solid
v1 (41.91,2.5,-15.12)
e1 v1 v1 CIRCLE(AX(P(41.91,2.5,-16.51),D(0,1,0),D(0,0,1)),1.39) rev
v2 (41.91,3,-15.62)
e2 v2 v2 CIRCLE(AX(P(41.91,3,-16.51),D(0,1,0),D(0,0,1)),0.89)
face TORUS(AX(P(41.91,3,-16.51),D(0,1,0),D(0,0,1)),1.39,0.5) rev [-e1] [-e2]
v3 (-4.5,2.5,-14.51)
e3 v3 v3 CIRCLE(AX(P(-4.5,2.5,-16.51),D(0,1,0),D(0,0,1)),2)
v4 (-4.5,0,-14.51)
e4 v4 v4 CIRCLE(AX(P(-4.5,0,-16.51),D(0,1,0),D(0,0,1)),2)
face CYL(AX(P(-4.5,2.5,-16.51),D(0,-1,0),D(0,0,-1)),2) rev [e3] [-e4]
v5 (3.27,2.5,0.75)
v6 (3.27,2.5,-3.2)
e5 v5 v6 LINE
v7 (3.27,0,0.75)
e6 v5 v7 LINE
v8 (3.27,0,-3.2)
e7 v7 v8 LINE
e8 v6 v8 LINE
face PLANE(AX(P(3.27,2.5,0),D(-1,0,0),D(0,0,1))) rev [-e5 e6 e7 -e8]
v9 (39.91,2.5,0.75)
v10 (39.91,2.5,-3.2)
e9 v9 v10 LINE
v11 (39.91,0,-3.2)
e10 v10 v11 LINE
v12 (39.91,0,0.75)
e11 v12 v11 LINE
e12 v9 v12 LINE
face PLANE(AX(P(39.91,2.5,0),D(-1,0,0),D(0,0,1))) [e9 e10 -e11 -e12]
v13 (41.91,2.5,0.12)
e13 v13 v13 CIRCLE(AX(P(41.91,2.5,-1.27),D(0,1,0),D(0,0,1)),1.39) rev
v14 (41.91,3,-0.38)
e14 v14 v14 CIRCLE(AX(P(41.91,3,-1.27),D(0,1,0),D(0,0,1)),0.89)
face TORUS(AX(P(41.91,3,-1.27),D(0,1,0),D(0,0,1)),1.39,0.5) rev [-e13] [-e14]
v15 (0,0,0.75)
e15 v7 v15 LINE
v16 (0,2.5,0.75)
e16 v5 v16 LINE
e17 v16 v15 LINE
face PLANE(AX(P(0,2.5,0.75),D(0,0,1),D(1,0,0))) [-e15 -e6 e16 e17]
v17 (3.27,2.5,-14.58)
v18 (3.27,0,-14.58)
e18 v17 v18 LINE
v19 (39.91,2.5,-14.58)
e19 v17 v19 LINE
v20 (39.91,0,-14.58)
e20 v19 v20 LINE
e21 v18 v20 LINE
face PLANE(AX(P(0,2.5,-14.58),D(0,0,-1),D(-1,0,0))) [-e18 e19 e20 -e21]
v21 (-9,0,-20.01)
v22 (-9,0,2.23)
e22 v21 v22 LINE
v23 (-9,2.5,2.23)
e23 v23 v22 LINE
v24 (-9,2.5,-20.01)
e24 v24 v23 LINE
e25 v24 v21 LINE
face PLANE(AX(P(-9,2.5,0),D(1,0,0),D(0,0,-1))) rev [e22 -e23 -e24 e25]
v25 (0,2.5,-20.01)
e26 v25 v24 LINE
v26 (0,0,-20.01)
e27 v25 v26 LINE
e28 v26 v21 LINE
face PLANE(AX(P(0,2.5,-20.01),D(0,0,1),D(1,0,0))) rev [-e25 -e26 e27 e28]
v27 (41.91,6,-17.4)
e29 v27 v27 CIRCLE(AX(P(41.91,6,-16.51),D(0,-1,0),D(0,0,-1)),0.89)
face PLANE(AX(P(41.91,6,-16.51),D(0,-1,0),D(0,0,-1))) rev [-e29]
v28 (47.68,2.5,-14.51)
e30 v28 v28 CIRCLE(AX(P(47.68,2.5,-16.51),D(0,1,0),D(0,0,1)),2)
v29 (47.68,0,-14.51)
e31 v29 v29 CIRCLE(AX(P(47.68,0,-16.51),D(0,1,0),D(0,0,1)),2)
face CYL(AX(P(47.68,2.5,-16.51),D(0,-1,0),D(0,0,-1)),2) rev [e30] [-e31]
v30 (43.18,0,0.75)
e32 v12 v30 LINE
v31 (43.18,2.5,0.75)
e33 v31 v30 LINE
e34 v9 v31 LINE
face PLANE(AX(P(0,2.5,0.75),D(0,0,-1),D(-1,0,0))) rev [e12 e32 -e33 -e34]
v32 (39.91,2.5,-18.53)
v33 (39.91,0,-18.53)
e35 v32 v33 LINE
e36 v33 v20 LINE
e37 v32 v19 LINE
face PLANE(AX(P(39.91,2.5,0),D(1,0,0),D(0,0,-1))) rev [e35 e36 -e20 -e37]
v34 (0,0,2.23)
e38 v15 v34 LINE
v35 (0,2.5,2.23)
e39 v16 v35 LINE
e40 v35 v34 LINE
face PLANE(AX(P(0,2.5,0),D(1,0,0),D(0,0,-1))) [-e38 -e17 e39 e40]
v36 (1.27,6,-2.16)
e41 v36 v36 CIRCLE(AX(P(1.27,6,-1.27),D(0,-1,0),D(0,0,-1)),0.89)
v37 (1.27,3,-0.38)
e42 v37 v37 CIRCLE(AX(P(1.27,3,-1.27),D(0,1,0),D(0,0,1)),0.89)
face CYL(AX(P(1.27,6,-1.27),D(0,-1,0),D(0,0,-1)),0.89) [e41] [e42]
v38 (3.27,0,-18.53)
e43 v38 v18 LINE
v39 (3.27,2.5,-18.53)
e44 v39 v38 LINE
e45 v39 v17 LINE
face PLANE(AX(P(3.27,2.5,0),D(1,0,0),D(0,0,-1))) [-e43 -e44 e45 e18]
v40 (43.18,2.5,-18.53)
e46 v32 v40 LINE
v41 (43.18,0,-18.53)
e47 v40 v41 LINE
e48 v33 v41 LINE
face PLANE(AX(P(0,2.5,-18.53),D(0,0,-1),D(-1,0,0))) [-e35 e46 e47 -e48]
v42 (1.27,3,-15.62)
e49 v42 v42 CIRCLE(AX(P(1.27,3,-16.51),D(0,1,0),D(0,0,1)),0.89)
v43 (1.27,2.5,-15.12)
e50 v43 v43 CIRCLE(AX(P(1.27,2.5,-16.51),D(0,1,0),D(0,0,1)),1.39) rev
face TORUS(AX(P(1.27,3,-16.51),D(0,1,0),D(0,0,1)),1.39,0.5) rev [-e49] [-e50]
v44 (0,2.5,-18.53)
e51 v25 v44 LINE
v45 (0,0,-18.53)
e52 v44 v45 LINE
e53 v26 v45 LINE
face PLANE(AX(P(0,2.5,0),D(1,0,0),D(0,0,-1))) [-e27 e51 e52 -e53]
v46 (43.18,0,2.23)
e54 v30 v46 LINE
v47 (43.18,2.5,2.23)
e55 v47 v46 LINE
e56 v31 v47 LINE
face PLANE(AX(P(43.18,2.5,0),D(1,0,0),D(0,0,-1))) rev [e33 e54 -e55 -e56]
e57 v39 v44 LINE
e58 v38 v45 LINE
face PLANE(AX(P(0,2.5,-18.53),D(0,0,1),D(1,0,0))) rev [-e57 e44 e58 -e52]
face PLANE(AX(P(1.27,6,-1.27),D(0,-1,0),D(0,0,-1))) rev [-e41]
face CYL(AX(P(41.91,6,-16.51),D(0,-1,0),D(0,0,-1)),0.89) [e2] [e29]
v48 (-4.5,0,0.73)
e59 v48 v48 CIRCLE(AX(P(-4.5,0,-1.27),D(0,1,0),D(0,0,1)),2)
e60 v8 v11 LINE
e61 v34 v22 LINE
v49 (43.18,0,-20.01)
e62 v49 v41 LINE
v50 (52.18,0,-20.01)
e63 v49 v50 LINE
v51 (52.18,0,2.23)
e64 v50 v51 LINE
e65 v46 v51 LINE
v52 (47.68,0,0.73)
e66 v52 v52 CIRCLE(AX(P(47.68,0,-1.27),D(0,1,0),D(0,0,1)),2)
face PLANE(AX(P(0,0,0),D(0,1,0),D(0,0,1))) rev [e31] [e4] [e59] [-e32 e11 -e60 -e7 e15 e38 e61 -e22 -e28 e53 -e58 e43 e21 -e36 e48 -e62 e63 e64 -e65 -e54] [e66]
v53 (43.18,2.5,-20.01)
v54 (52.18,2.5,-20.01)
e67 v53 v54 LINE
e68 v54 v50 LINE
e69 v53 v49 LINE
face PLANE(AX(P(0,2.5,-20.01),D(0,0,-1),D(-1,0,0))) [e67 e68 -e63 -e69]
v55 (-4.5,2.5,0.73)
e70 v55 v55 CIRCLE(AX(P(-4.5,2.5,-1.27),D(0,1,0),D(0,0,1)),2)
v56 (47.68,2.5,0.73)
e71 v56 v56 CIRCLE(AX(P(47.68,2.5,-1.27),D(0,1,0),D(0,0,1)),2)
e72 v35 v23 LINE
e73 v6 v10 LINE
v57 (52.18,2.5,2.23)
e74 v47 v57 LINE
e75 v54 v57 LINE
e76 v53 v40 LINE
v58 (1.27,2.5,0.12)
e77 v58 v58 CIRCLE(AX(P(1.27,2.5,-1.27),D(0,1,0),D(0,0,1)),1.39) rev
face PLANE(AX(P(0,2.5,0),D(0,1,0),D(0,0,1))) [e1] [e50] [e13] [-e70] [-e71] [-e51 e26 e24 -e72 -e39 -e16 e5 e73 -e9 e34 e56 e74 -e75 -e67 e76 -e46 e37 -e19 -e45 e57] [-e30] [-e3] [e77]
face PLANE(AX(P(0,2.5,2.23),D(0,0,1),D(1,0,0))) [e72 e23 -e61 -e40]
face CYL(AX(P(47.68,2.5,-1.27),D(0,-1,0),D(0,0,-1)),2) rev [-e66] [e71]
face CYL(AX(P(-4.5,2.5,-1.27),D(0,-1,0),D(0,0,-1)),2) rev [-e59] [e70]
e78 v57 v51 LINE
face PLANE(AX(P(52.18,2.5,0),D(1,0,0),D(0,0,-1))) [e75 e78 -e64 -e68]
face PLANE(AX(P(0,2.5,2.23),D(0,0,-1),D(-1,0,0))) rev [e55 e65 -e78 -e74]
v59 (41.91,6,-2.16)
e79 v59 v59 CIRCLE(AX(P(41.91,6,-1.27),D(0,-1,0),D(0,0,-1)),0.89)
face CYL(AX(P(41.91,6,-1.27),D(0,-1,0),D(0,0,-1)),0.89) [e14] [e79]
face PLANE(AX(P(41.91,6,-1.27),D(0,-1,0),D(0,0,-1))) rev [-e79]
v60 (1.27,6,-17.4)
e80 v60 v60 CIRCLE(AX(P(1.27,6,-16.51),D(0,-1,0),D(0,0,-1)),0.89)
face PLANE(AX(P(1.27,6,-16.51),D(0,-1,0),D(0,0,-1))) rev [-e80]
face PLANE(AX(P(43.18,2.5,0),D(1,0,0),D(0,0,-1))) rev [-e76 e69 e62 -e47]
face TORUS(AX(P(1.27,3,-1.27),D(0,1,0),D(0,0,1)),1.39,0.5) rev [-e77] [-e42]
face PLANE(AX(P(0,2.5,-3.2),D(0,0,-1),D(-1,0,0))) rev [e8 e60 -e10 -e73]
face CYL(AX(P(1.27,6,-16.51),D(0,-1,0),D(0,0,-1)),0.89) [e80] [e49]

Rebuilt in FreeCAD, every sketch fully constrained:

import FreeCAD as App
import Part
import Sketcher

V = App.Vector
Q = App.Units.Quantity


def edges_at(feature, points):
    """Names of the edges that pass closest to the given points."""
    edges = feature.Shape.Edges
    near = lambda p: min(range(len(edges)), key=lambda i: edges[i].distToShape(Part.Vertex(*p))[0])
    return sorted({f"Edge{near(p) + 1}" for p in points})


def add_polygon(sketch, points):
    """Adds a closed chain of lines whose ends are joined by coincident constraints."""
    first, n = sketch.GeometryCount, len(points)
    for a, b in zip(points, points[1:] + points[:1]):
        sketch.addGeometry(Part.LineSegment(App.Vector(*a, 0), App.Vector(*b, 0)), False)
    for i in range(n):
        sketch.addConstraint(Sketcher.Constraint("Coincident", first + i, 2, first + (i + 1) % n, 1))

doc = App.newDocument("Part")
body = doc.addObject("PartDesign::Body", "Body")

sketch1 = body.newObject("Sketcher::SketchObject", "Sketch")
sketch1.AttachmentSupport = (doc.getObject("XZ_Plane"), [""])
sketch1.MapMode = "FlatFace"
add_polygon(sketch1, [(3.3, -14.6), (3.3, -18.5), (0, -18.5), (0, -20), (-9, -20), (-9, 2.2), (0, 2.2), (0, 0.8), (3.3, 0.8), (3.3, -3.2), (39.9, -3.2), (39.9, 0.8), (43.2, 0.8), (43.2, 2.2), (52.2, 2.2), (52.2, -20), (43.2, -20), (43.2, -18.5), (39.9, -18.5), (39.9, -14.6)])
sketch1.addGeometry(Part.Circle(V(1.3, -1.3, 0), V(0, 0, 1), 0.9), False)
sketch1.addGeometry(Part.Circle(V(41.9, -1.3, 0), V(0, 0, 1), 0.9), False)
sketch1.addGeometry(Part.Circle(V(1.3, -16.5, 0), V(0, 0, 1), 0.9), False)
sketch1.addGeometry(Part.Circle(V(41.9, -16.5, 0), V(0, 0, 1), 0.9), False)
sketch1.addGeometry(Part.Circle(V(-4.5, -16.5, 0), V(0, 0, 1), 2), False)
sketch1.addGeometry(Part.Circle(V(-4.5, -1.3, 0), V(0, 0, 1), 2), False)
sketch1.addGeometry(Part.Circle(V(47.7, -1.3, 0), V(0, 0, 1), 2), False)
sketch1.addGeometry(Part.Circle(V(47.7, -16.5, 0), V(0, 0, 1), 2), False)
sketch1.addConstraint([
    Sketcher.Constraint("Vertical", 0),
    Sketcher.Constraint("Horizontal", 1),
    Sketcher.Constraint("Vertical", 2),
    Sketcher.Constraint("Horizontal", 3),
    Sketcher.Constraint("Vertical", 4),
    Sketcher.Constraint("Horizontal", 5),
    Sketcher.Constraint("Vertical", 6),
    Sketcher.Constraint("Horizontal", 7),
    Sketcher.Constraint("Vertical", 8),
    Sketcher.Constraint("Horizontal", 9),
    Sketcher.Constraint("Vertical", 10),
    Sketcher.Constraint("Horizontal", 11),
    Sketcher.Constraint("Vertical", 12),
    Sketcher.Constraint("Horizontal", 13),
    Sketcher.Constraint("Vertical", 14),
    Sketcher.Constraint("Horizontal", 15),
    Sketcher.Constraint("Vertical", 16),
    Sketcher.Constraint("Horizontal", 17),
    Sketcher.Constraint("Vertical", 18),
    Sketcher.Constraint("Horizontal", 19),
    Sketcher.Constraint("Equal", 20, 21),
    Sketcher.Constraint("Equal", 21, 22),
    Sketcher.Constraint("Equal", 22, 23),
    Sketcher.Constraint("Equal", 24, 25),
    Sketcher.Constraint("Equal", 25, 26),
    Sketcher.Constraint("Equal", 26, 27),
    Sketcher.Constraint("PointOnObject", 1, 2, -2),
    Sketcher.Constraint("PointOnObject", 5, 2, -2),
    Sketcher.Constraint("Horizontal", 20, 3, 21, 3),
    Sketcher.Constraint("Horizontal", 22, 3, 23, 3),
    Sketcher.Constraint("Horizontal", 23, 3, 24, 3),
    Sketcher.Constraint("Horizontal", 21, 3, 25, 3),
    Sketcher.Constraint("Horizontal", 25, 3, 26, 3),
    Sketcher.Constraint("Horizontal", 24, 3, 27, 3),
    Sketcher.Constraint("Horizontal", 7, 2, 10, 2),
    Sketcher.Constraint("Horizontal", 5, 2, 12, 2),
    Sketcher.Constraint("Horizontal", 3, 2, 14, 2),
    Sketcher.Constraint("Horizontal", 1, 2, 16, 2),
    Sketcher.Constraint("Vertical", 20, 3, 22, 3),
    Sketcher.Constraint("Vertical", 21, 3, 23, 3),
    Sketcher.Constraint("Vertical", 24, 3, 25, 3),
    Sketcher.Constraint("Vertical", 26, 3, 27, 3),
    Sketcher.Constraint("Vertical", 0, 2, 7, 2),
    Sketcher.Constraint("Vertical", 12, 2, 15, 2),
    Sketcher.Constraint("Vertical", 10, 2, 17, 2),
    Sketcher.Constraint("Equal", 7, 11),
    Sketcher.Constraint("Equal", 5, 13),
    Sketcher.Constraint("Equal", 2, 6),
    Sketcher.Constraint("Equal", 0, 8),
    Sketcher.Constraint("Diameter", 24, Q("4 mm")),
    Sketcher.Constraint("Diameter", 20, Q("1.78 mm")),
    Sketcher.Constraint("DistanceX", 3, 2, 3, 1, Q("9 mm")),
    Sketcher.Constraint("DistanceX", 22, 3, 0, 2, Q("2 mm")),
    Sketcher.Constraint("DistanceX", 9, 2, 21, 3, Q("2 mm")),
    Sketcher.Constraint("DistanceX", 1, 2, 1, 1, Q("3.27 mm")),
    Sketcher.Constraint("DistanceX", 9, 1, 9, 2, Q("36.64 mm")),
    Sketcher.Constraint("DistanceY", 0, 2, 0, 1, Q("3.95 mm")),
    Sketcher.Constraint("DistanceY", 2, 2, 2, 1, Q("1.48 mm")),
    Sketcher.Constraint("DistanceY", 4, 1, 4, 2, Q("22.24 mm")),
    Sketcher.Constraint("DistanceX", 24, 3, -1, 1, Q("4.5 mm")),
    Sketcher.Constraint("DistanceY", 8, 2, -1, 1, Q("3.2 mm")),
    Sketcher.Constraint("DistanceY", 2, 2, 22, 3, Q("3.5 mm")),
    Sketcher.Constraint("DistanceY", 25, 3, 4, 2, Q("3.5 mm")),
    Sketcher.Constraint("DistanceX", 11, 2, 26, 3, Q("4.5 mm")),
])
pad1 = body.newObject("PartDesign::Pad", "Pad")
pad1.Profile = sketch1
pad1.Length = 2.5
pad1.Reversed = True

sketch2 = body.newObject("Sketcher::SketchObject", "Sketch001")
sketch2.AttachmentSupport = (doc.getObject("XZ_Plane"), [""])
sketch2.MapMode = "FlatFace"
sketch2.addGeometry([
    Part.Circle(V(1.3, -16.5, 0), V(0, 0, 1), 0.9),
    Part.Circle(V(1.3, -1.3, 0), V(0, 0, 1), 0.9),
    Part.Circle(V(41.9, -16.5, 0), V(0, 0, 1), 0.9),
    Part.Circle(V(41.9, -1.3, 0), V(0, 0, 1), 0.9),
], False)
sketch2.addConstraint([
    Sketcher.Constraint("Equal", 0, 1),
    Sketcher.Constraint("Equal", 1, 2),
    Sketcher.Constraint("Equal", 2, 3),
    Sketcher.Constraint("Horizontal", 0, 3, 2, 3),
    Sketcher.Constraint("Horizontal", 1, 3, 3, 3),
    Sketcher.Constraint("Vertical", 0, 3, 1, 3),
    Sketcher.Constraint("Vertical", 2, 3, 3, 3),
    Sketcher.Constraint("Diameter", 0, Q("1.78 mm")),
    Sketcher.Constraint("DistanceX", -1, 1, 0, 3, Q("1.27 mm")),
    Sketcher.Constraint("DistanceY", 0, 3, -1, 1, Q("16.51 mm")),
    Sketcher.Constraint("DistanceY", 1, 3, -1, 1, Q("1.27 mm")),
    Sketcher.Constraint("DistanceX", -1, 1, 2, 3, Q("41.91 mm")),
])
pad2 = body.newObject("PartDesign::Pad", "Pad001")
pad2.Profile = sketch2
pad2.Length = 6
pad2.Reversed = True
doc.recompute()

fillet = body.newObject("PartDesign::Fillet", "Fillet")
fillet.Base = (pad2, edges_at(pad2, [
    (41.91, 2.5, -0.38),
    (41.91, 2.5, -15.62),
    (1.27, 2.5, -0.38),
    (1.27, 2.5, -15.62),
]))
fillet.Radius = 0.5

doc.recompute()
